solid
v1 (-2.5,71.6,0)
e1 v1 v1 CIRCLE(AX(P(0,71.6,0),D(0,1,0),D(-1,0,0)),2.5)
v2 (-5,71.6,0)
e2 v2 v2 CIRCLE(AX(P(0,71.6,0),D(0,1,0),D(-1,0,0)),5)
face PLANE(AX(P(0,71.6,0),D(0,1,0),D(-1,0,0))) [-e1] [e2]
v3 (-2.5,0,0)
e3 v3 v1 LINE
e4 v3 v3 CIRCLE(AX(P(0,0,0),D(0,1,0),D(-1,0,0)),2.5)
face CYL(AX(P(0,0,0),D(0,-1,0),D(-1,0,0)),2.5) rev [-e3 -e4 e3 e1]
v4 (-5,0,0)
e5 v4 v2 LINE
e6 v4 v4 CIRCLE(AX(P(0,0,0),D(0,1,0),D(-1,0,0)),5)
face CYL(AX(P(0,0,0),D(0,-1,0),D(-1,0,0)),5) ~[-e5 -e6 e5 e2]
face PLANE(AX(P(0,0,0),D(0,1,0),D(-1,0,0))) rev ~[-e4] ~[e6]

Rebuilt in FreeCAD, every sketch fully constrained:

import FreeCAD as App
import Part
import Sketcher

V = App.Vector

doc = App.newDocument("Part")
body = doc.addObject("PartDesign::Body", "Body")

# Sketch on XZ plane
sketch1 = body.newObject("Sketcher::SketchObject", "Sketch")
sketch1.AttachmentSupport = (doc.getObject("XZ_Plane"), [""])
sketch1.MapMode = "FlatFace"
sketch1.addGeometry(Part.Circle(V(0, 0, 0), V(0, 0, 1), 5), False)
sketch1.addGeometry(Part.Circle(V(0, 0, 0), V(0, 0, 1), 2.5), False)
sketch1.addConstraint(Sketcher.Constraint("Coincident", 0, 3, -1, 1))
sketch1.addConstraint(Sketcher.Constraint("Coincident", 1, 3, -1, 1))
sketch1.addConstraint(Sketcher.Constraint("Diameter", 0, 10.0))
sketch1.addConstraint(Sketcher.Constraint("Diameter", 1, 5.0))
pad1 = body.newObject("PartDesign::Pad", "Pad")
pad1.Profile = sketch1
pad1.Length = 71.6
pad1.Reversed = True

doc.recompute()
